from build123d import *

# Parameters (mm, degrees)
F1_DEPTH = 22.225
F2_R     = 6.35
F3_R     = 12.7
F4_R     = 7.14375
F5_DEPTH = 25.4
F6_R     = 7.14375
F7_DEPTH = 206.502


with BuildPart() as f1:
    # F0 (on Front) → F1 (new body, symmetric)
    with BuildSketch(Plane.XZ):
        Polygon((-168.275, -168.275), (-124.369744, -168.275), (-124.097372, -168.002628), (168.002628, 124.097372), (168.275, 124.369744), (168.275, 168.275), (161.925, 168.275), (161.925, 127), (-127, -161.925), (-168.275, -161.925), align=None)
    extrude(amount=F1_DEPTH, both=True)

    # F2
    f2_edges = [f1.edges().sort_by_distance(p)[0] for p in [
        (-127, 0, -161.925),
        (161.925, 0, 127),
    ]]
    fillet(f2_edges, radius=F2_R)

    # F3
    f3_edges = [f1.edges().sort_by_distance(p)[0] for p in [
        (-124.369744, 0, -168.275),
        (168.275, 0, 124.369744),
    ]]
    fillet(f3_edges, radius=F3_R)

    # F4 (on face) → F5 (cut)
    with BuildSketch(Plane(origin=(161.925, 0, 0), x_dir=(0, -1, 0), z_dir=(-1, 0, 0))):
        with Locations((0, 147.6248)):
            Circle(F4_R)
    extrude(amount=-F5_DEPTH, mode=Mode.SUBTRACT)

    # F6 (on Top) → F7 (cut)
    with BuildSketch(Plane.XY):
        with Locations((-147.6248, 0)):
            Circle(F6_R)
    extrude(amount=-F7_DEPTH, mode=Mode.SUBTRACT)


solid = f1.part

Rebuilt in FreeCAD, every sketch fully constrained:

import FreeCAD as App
import Part
import Sketcher

V = App.Vector
Q = App.Units.Quantity


def edges_at(feature, points):
    """Names of the edges that pass closest to the given points."""
    edges = feature.Shape.Edges
    near = lambda p: min(range(len(edges)), key=lambda i: edges[i].distToShape(Part.Vertex(*p))[0])
    return sorted({f"Edge{near(p) + 1}" for p in points})

doc = App.newDocument("Part")
body = doc.addObject("PartDesign::Body", "Body")

sketch1 = body.newObject("Sketcher::SketchObject", "Sketch")
sketch1.AttachmentSupport = (doc.getObject("XZ_Plane"), [""])
sketch1.MapMode = "FlatFace"
sketch1.addGeometry(Part.LineSegment(V(-168.275, -168.275, 0), V(-124.369744, -168.275, 0)), False)
sketch1.addGeometry(Part.LineSegment(V(-124.369744, -168.275, 0), V(168.275, 124.369744, 0)), False)
sketch1.addGeometry(Part.LineSegment(V(168.275, 124.369744, 0), V(168.275, 168.275, 0)), False)
sketch1.addGeometry(Part.LineSegment(V(168.275, 168.275, 0), V(161.925, 168.275, 0)), False)
sketch1.addGeometry(Part.LineSegment(V(161.925, 168.275, 0), V(161.925, 127, 0)), False)
sketch1.addGeometry(Part.LineSegment(V(161.925, 127, 0), V(-127, -161.925, 0)), False)
sketch1.addGeometry(Part.LineSegment(V(-127, -161.925, 0), V(-168.275, -161.925, 0)), False)
sketch1.addGeometry(Part.LineSegment(V(-168.275, -161.925, 0), V(-168.275, -168.275, 0)), False)
sketch1.addConstraint(Sketcher.Constraint("Coincident", 0, 2, 1, 1))
sketch1.addConstraint(Sketcher.Constraint("Coincident", 1, 2, 2, 1))
sketch1.addConstraint(Sketcher.Constraint("Coincident", 2, 2, 3, 1))
sketch1.addConstraint(Sketcher.Constraint("Coincident", 3, 2, 4, 1))
sketch1.addConstraint(Sketcher.Constraint("Coincident", 4, 2, 5, 1))
sketch1.addConstraint(Sketcher.Constraint("Coincident", 5, 2, 6, 1))
sketch1.addConstraint(Sketcher.Constraint("Coincident", 6, 2, 7, 1))
sketch1.addConstraint(Sketcher.Constraint("Coincident", 7, 2, 0, 1))
sketch1.addConstraint(Sketcher.Constraint("Horizontal", 0))
sketch1.addConstraint(Sketcher.Constraint("Vertical", 2))
sketch1.addConstraint(Sketcher.Constraint("Horizontal", 3))
sketch1.addConstraint(Sketcher.Constraint("Vertical", 4))
sketch1.addConstraint(Sketcher.Constraint("Horizontal", 6))
sketch1.addConstraint(Sketcher.Constraint("Vertical", 7))
sketch1.addConstraint(Sketcher.Constraint("Symmetric", 2, 2, 7, 2, -1, 1))
sketch1.addConstraint(Sketcher.Constraint("Parallel", 1, 5))
sketch1.addConstraint(Sketcher.Constraint("Equal", 0, 2))
sketch1.addConstraint(Sketcher.Constraint("Equal", 6, 4))
sketch1.addConstraint(Sketcher.Constraint("Equal", 3, 7))
sketch1.addConstraint(Sketcher.Constraint("DistanceY", -1, 1, 4, 2, Q("5 in")))
sketch1.addConstraint(Sketcher.Constraint("DistanceY", 5, 2, 3, 2, Q("13 in")))
sketch1.addConstraint(Sketcher.Constraint("DistanceX", 3, 2, 3, 1, Q("0.25 in")))
sketch1.addConstraint(Sketcher.Constraint("DistanceX", 0, 1, 0, 2, Q("43.905256 mm")))
pad1 = body.newObject("PartDesign::Pad", "Pad")
pad1.Profile = sketch1
pad1.Length = Q("1.75 in")
pad1.Midplane = True
doc.recompute()

fillet = body.newObject("PartDesign::Fillet", "Fillet")
fillet.Base = (pad1, edges_at(pad1, [(-127, 0, -161.925), (161.925, 0, 127)]))
fillet.Radius = Q("0.25 in")
doc.recompute()

fillet2 = body.newObject("PartDesign::Fillet", "Fillet001")
fillet2.Base = (fillet, edges_at(fillet, [(-124.37, 0, -168.275), (168.275, 0, 124.37)]))
fillet2.Radius = Q("0.5 in")

sketch2 = body.newObject("Sketcher::SketchObject", "Sketch001")
sketch2.AttachmentSupport = (doc.getObject("YZ_Plane"), [""])
sketch2.MapMode = "FlatFace"
sketch2.AttachmentOffset = App.Placement(V(0, 0, 6.375 * 25.4), App.Rotation())
sketch2.addGeometry(Part.Circle(V(0, 147.6248, 0), V(0, 0, 1), 7.14375), False)
sketch2.addConstraint(Sketcher.Constraint("PointOnObject", 0, 3, -2))
sketch2.addConstraint(Sketcher.Constraint("Diameter", 0, Q("0.5625 in")))
sketch2.addConstraint(Sketcher.Constraint("DistanceY", -1, 1, 0, 3, Q("5.812 in")))
pocket1 = body.newObject("PartDesign::Pocket", "Pocket")
pocket1.Profile = sketch2
pocket1.Length = Q("1 in")
pocket1.Reversed = True

sketch3 = body.newObject("Sketcher::SketchObject", "Sketch002")
sketch3.AttachmentSupport = (doc.getObject("XY_Plane"), [""])
sketch3.MapMode = "FlatFace"
sketch3.addGeometry(Part.Circle(V(-147.6248, 0, 0), V(0, 0, 1), 7.14375), False)
sketch3.addConstraint(Sketcher.Constraint("PointOnObject", 0, 3, -1))
sketch3.addConstraint(Sketcher.Constraint("Diameter", 0, Q("0.5625 in")))
sketch3.addConstraint(Sketcher.Constraint("DistanceX", 0, 3, -1, 1, Q("5.812 in")))
pocket2 = body.newObject("PartDesign::Pocket", "Pocket001")
pocket2.Profile = sketch3
pocket2.Length = Q("8.13 in")

doc.recompute()
